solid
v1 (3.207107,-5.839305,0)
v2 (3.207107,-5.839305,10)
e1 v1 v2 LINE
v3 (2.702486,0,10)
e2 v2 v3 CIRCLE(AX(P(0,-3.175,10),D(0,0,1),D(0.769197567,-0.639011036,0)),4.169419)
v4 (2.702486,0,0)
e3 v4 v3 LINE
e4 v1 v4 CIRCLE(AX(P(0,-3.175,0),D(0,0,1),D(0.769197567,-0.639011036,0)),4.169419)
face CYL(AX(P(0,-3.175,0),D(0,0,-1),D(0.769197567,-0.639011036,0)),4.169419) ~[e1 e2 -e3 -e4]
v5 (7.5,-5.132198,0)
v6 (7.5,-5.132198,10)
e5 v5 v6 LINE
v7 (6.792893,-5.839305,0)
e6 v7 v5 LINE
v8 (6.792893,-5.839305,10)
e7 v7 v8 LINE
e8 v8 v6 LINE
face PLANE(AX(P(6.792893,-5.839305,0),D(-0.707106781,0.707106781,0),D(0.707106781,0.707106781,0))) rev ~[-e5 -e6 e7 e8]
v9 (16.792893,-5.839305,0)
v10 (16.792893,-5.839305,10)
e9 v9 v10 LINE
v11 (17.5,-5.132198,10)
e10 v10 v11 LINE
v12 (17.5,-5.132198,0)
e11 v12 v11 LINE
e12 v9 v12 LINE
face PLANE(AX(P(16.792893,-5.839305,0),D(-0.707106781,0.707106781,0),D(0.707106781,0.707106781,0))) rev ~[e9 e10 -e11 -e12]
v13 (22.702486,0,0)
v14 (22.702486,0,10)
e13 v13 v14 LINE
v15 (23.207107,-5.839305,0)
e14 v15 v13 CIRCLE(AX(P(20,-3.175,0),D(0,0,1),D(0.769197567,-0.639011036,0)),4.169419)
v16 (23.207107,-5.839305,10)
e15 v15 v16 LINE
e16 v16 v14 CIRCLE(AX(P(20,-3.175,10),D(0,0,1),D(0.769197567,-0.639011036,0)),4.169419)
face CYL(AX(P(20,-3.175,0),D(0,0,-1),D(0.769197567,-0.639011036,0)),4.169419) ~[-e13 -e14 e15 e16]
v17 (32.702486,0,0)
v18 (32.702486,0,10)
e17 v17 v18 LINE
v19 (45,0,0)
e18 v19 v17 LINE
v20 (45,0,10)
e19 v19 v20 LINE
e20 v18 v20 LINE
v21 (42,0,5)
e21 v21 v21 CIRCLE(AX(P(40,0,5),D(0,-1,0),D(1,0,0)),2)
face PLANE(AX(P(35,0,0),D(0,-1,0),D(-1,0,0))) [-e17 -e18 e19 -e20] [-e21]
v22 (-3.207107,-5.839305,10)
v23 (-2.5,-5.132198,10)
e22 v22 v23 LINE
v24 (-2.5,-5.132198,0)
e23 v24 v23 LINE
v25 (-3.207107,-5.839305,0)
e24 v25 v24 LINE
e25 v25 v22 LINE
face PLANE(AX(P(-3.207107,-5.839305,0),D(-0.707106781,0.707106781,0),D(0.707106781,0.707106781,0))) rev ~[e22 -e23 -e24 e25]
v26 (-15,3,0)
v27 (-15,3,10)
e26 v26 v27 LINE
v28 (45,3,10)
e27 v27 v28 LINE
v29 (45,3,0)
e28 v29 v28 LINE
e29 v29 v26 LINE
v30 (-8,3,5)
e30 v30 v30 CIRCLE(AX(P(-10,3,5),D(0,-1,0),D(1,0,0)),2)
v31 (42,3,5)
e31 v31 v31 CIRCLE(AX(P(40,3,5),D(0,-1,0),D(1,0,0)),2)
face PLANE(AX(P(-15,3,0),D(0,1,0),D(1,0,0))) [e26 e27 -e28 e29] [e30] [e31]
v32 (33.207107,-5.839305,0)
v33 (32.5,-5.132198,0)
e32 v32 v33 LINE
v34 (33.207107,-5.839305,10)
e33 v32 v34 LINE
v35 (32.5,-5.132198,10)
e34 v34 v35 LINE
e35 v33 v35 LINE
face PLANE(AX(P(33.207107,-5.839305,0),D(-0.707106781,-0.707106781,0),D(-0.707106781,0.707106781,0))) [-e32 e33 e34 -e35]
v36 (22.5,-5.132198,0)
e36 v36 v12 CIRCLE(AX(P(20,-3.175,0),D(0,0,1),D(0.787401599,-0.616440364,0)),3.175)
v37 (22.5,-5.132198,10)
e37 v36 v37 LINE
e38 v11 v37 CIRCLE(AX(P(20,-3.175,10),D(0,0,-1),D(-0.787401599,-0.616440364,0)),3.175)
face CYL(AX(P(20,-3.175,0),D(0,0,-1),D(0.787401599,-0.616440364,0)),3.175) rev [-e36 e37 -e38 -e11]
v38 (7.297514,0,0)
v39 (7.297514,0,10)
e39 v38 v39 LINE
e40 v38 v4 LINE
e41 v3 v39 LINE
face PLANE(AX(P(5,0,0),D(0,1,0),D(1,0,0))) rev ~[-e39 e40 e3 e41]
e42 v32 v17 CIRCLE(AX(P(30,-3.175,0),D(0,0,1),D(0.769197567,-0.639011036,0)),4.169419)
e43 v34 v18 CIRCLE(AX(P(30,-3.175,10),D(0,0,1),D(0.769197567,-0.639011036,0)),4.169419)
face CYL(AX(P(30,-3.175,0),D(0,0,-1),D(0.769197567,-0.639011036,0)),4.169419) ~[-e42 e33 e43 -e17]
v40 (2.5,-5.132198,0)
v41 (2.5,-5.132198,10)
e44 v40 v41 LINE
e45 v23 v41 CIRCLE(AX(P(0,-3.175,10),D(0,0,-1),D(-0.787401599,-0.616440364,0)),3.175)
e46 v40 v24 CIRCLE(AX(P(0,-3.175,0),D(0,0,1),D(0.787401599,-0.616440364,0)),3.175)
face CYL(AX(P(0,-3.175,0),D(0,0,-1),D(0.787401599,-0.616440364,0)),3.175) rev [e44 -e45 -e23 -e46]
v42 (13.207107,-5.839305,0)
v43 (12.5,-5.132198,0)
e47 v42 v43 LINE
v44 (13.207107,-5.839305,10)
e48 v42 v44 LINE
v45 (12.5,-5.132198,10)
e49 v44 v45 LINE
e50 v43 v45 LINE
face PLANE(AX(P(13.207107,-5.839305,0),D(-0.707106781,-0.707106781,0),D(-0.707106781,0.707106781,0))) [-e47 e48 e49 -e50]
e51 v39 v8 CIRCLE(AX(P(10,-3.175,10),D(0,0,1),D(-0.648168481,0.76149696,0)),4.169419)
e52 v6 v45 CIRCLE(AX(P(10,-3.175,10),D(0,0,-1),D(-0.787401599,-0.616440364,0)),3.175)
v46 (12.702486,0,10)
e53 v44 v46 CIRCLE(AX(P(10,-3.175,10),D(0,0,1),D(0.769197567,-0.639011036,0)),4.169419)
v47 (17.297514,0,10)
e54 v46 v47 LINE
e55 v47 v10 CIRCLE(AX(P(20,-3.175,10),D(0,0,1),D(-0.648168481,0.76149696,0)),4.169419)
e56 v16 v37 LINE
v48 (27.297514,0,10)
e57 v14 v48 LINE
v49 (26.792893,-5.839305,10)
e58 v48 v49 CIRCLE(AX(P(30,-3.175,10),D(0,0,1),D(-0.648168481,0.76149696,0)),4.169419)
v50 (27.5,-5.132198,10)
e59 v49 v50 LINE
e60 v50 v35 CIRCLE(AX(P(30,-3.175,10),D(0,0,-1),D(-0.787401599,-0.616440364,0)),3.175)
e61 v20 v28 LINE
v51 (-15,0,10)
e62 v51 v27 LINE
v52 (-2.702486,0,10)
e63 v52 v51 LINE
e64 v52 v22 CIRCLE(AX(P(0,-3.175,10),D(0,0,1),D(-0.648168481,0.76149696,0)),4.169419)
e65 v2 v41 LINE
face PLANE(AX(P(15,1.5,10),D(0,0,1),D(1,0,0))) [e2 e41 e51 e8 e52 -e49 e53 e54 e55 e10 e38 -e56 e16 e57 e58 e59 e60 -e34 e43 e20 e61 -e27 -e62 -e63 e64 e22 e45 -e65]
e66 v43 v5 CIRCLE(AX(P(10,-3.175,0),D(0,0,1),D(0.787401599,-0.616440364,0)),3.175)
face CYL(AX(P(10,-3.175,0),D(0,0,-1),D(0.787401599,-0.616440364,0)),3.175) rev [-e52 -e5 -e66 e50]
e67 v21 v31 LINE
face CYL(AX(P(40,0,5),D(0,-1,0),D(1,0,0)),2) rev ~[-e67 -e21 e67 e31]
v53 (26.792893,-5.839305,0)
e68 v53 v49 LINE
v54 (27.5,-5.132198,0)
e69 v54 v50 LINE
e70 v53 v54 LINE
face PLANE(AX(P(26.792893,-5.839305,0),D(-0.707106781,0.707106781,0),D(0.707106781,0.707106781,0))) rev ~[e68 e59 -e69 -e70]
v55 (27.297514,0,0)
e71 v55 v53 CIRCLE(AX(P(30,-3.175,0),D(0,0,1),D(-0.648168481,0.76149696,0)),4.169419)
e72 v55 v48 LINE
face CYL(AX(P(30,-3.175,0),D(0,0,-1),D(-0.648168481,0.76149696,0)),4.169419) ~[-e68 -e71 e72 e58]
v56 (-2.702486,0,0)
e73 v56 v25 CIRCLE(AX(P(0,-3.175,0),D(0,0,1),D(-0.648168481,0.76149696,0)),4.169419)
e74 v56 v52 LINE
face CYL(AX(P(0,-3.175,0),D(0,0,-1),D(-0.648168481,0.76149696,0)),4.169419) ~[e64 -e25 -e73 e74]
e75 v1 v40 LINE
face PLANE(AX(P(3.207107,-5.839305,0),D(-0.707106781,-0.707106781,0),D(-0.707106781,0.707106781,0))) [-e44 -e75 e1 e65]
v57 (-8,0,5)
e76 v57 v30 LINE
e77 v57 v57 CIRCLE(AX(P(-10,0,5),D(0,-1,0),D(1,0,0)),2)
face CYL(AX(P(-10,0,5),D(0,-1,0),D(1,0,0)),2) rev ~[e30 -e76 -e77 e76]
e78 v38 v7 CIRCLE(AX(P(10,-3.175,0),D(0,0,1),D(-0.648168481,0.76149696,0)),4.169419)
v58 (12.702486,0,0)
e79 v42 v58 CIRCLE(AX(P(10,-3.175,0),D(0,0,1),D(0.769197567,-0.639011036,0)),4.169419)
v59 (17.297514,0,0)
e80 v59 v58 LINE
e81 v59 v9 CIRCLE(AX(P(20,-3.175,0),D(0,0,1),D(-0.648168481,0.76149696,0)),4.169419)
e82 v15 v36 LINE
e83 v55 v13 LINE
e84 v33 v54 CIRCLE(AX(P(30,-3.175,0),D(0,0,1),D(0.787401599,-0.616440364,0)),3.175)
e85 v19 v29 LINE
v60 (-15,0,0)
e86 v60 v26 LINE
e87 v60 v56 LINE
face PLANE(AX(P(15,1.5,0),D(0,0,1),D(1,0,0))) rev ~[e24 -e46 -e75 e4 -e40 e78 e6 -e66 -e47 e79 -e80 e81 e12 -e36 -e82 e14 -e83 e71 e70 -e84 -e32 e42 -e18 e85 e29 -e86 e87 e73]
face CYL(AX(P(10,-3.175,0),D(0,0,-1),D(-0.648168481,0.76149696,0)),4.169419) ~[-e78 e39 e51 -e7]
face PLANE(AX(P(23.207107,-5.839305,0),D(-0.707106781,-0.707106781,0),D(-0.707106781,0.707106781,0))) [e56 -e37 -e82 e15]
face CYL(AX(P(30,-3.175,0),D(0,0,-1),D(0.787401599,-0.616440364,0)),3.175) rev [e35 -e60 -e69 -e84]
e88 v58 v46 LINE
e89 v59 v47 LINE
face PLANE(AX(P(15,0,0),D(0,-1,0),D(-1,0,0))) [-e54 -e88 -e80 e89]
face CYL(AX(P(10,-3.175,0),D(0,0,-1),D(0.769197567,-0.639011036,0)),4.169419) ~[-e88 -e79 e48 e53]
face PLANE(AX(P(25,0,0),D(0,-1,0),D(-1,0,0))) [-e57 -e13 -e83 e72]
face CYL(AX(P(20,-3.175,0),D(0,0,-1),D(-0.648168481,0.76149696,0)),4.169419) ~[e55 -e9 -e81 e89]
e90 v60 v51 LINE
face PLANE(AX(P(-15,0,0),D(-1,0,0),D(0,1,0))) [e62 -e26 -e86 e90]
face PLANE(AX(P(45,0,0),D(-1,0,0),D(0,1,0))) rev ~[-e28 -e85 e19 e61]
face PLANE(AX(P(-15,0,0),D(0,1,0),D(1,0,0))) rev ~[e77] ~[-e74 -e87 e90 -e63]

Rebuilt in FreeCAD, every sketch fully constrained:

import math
import FreeCAD as App
import Part
import Sketcher
from FreeCAD import Vector
Q = App.Units.Quantity


def add_polygon(sketch, points):
    """Adds a closed chain of lines whose ends are joined by coincident constraints."""
    first, n = sketch.GeometryCount, len(points)
    for a, b in zip(points, points[1:] + points[:1]):
        sketch.addGeometry(Part.LineSegment(App.Vector(*a, 0), App.Vector(*b, 0)), False)
    for i in range(n):
        sketch.addConstraint(Sketcher.Constraint("Coincident", first + i, 2, first + (i + 1) % n, 1))

doc = App.newDocument("Part")
body = doc.addObject("PartDesign::Body", "Body")

# Sketch on XY plane
sketch1 = body.newObject("Sketcher::SketchObject", "Sketch")
sketch1.AttachmentSupport = (doc.getObject("XY_Plane"), [""])
sketch1.MapMode = "FlatFace"
sketch1.addGeometry(Part.LineSegment(Vector(5, 3, 0), Vector(-5, 3, 0)), False)
sketch1.addGeometry(Part.LineSegment(Vector(-5, 3, 0), Vector(-5, 0, 0)), False)
sketch1.addGeometry(Part.LineSegment(Vector(-5, 0, 0), Vector(-2.7, 0, 0)), False)
sketch1.addGeometry(Part.ArcOfCircle(Part.Circle(Vector(0, -3.2, 0), Vector(0, 0, 1), 4.2), math.radians(130), math.radians(220)), False)
sketch1.addGeometry(Part.LineSegment(Vector(-3.2, -5.8, 0), Vector(-2.5, -5.1, 0)), False)
sketch1.addGeometry(Part.ArcOfCircle(Part.Circle(Vector(0, -3.2, 0), Vector(0, 0, 1), 3.2), math.radians(-38), math.radians(218)), False)
sketch1.addGeometry(Part.LineSegment(Vector(2.5, -5.1, 0), Vector(3.2, -5.8, 0)), False)
sketch1.addGeometry(Part.ArcOfCircle(Part.Circle(Vector(0, -3.2, 0), Vector(0, 0, 1), 4.2), math.radians(-40), math.radians(50)), False)
sketch1.addGeometry(Part.LineSegment(Vector(2.7, 0, 0), Vector(5, 0, 0)), False)
sketch1.addGeometry(Part.LineSegment(Vector(5, 0, 0), Vector(5, 3, 0)), False)
sketch1.addConstraint(Sketcher.Constraint("Coincident", 0, 2, 1, 1))
sketch1.addConstraint(Sketcher.Constraint("Coincident", 1, 2, 2, 1))
sketch1.addConstraint(Sketcher.Constraint("Coincident", 2, 2, 3, 1))
sketch1.addConstraint(Sketcher.Constraint("Coincident", 3, 2, 4, 1))
sketch1.addConstraint(Sketcher.Constraint("Coincident", 4, 2, 5, 2))
sketch1.addConstraint(Sketcher.Constraint("Coincident", 5, 1, 6, 1))
sketch1.addConstraint(Sketcher.Constraint("Coincident", 6, 2, 7, 1))
sketch1.addConstraint(Sketcher.Constraint("Coincident", 7, 2, 8, 1))
sketch1.addConstraint(Sketcher.Constraint("Coincident", 8, 2, 9, 1))
sketch1.addConstraint(Sketcher.Constraint("Coincident", 9, 2, 0, 1))
sketch1.addConstraint(Sketcher.Constraint("Horizontal", 0))
sketch1.addConstraint(Sketcher.Constraint("Vertical", 1))
sketch1.addConstraint(Sketcher.Constraint("Horizontal", 2))
sketch1.addConstraint(Sketcher.Constraint("Horizontal", 8))
sketch1.addConstraint(Sketcher.Constraint("Vertical", 9))
sketch1.addConstraint(Sketcher.Constraint("Coincident", 5, 3, 3, 3))
sketch1.addConstraint(Sketcher.Constraint("Coincident", 7, 3, 3, 3))
sketch1.addConstraint(Sketcher.Constraint("Equal", 3, 7))
sketch1.addConstraint(Sketcher.Constraint("Symmetric", 2, 2, 7, 2, -1, 1))
sketch1.addConstraint(Sketcher.Constraint("Symmetric", 4, 2, 5, 1, -2))
sketch1.addConstraint(Sketcher.Constraint("Perpendicular", 4, 6))
sketch1.addConstraint(Sketcher.Constraint("Horizontal", 3, 2, 6, 2))
sketch1.addConstraint(Sketcher.Constraint("Equal", 2, 8))
sketch1.addConstraint(Sketcher.Constraint("DistanceX", 0, 2, 0, 1, Q("10 mm")))
sketch1.addConstraint(Sketcher.Constraint("DistanceY", 1, 2, 1, 1, Q("3 mm")))
sketch1.addConstraint(Sketcher.Constraint("Distance", 4, Q("1 mm")))
sketch1.addConstraint(Sketcher.Constraint("Radius", 5, Q("3.175 mm")))
sketch1.addConstraint(Sketcher.Constraint("DistanceX", 4, 2, 5, 1, Q("5 mm")))
sketch1.addConstraint(Sketcher.Constraint("DistanceY", 3, 3, -1, 1, Q("3.175 mm")))
pad1 = body.newObject("PartDesign::Pad", "Pad")
pad1.Profile = sketch1
pad1.Length = 10
doc.recompute()

linearpattern = body.newObject("PartDesign::LinearPattern", "LinearPattern")
linearpattern.Originals = [pad1]
linearpattern.Direction = (doc.getObject("X_Axis"), [""])
linearpattern.Mode = "offset"
linearpattern.Offset = 10
linearpattern.Occurrences = 4
body.Tip = linearpattern

# Sketch on XY plane
sketch2 = body.newObject("Sketcher::SketchObject", "Sketch001")
sketch2.AttachmentSupport = (doc.getObject("XY_Plane"), [""])
sketch2.MapMode = "FlatFace"
add_polygon(sketch2, [(-15, 3), (-15, 0), (45, 0), (45, 3)])  # lines 0-3
sketch2.addConstraint(Sketcher.Constraint("Vertical", 0))
sketch2.addConstraint(Sketcher.Constraint("Horizontal", 1))
sketch2.addConstraint(Sketcher.Constraint("Vertical", 2))
sketch2.addConstraint(Sketcher.Constraint("Horizontal", 3))
sketch2.addConstraint(Sketcher.Constraint("PointOnObject", 0, 2, -1))
sketch2.addConstraint(Sketcher.Constraint("DistanceX", 1, 1, 1, 2, Q("60 mm")))
sketch2.addConstraint(Sketcher.Constraint("DistanceY", 0, 2, 0, 1, Q("3 mm")))
sketch2.addConstraint(Sketcher.Constraint("DistanceX", 0, 2, -1, 1, Q("15 mm")))
pad2 = body.newObject("PartDesign::Pad", "Pad001")
pad2.Profile = sketch2
pad2.Length = 10

# Sketch on XZ plane
sketch3 = body.newObject("Sketcher::SketchObject", "Sketch002")
sketch3.AttachmentSupport = (doc.getObject("XZ_Plane"), [""])
sketch3.MapMode = "FlatFace"
sketch3.addGeometry(Part.Circle(Vector(-10, 5, 0), Vector(0, 0, 1), 2), False)
sketch3.addGeometry(Part.Circle(Vector(40, 5, 0), Vector(0, 0, 1), 2), False)
sketch3.addConstraint(Sketcher.Constraint("Equal", 0, 1))
sketch3.addConstraint(Sketcher.Constraint("Horizontal", 0, 3, 1, 3))
sketch3.addConstraint(Sketcher.Constraint("Diameter", 0, Q("4 mm")))
sketch3.addConstraint(Sketcher.Constraint("DistanceX", 0, 3, -1, 1, Q("10 mm")))
sketch3.addConstraint(Sketcher.Constraint("DistanceY", -1, 1, 0, 3, Q("5 mm")))
sketch3.addConstraint(Sketcher.Constraint("DistanceX", -1, 1, 1, 3, Q("40 mm")))
pocket1 = body.newObject("PartDesign::Pocket", "Pocket")
pocket1.Profile = sketch3
pocket1.Length = 3

doc.recompute()
